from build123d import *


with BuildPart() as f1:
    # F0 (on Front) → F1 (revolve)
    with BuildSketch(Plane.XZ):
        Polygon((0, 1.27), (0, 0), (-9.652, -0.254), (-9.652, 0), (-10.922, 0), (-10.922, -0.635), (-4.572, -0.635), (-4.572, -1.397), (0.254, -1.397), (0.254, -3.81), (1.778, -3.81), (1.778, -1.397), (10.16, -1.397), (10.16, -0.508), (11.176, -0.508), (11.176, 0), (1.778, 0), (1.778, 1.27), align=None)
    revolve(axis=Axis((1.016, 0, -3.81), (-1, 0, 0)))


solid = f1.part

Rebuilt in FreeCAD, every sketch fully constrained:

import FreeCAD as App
import Part
import Sketcher
Q = App.Units.Quantity


def add_polygon(sketch, points):
    """Adds a closed chain of lines whose ends are joined by coincident constraints."""
    first, n = sketch.GeometryCount, len(points)
    for a, b in zip(points, points[1:] + points[:1]):
        sketch.addGeometry(Part.LineSegment(App.Vector(*a, 0), App.Vector(*b, 0)), False)
    for i in range(n):
        sketch.addConstraint(Sketcher.Constraint("Coincident", first + i, 2, first + (i + 1) % n, 1))

doc = App.newDocument("Part")
body = doc.addObject("PartDesign::Body", "Body")

sketch1 = body.newObject("Sketcher::SketchObject", "Sketch")
sketch1.AttachmentSupport = (doc.getObject("XZ_Plane"), [""])
sketch1.MapMode = "FlatFace"
add_polygon(sketch1, [(0, 1.27), (0, 0), (-9.652, -0.254), (-9.652, 0), (-10.922, 0), (-10.922, -0.635), (-4.572, -0.635), (-4.572, -1.397), (0.254, -1.397), (0.254, -3.81), (1.778, -3.81), (1.778, -1.397), (10.16, -1.397), (10.16, -0.508), (11.176, -0.508), (11.176, 0), (1.778, 0), (1.778, 1.27)])
sketch1.addGeometry(Part.LineSegment(App.Vector(11.176, -3.81, 0), App.Vector(-10.922, -3.81, 0)), True)
sketch1.addConstraint(Sketcher.Constraint("Vertical", 0))
sketch1.addConstraint(Sketcher.Constraint("Vertical", 2))
sketch1.addConstraint(Sketcher.Constraint("Horizontal", 3))
sketch1.addConstraint(Sketcher.Constraint("Vertical", 4))
sketch1.addConstraint(Sketcher.Constraint("Horizontal", 5))
sketch1.addConstraint(Sketcher.Constraint("Vertical", 6))
sketch1.addConstraint(Sketcher.Constraint("Horizontal", 7))
sketch1.addConstraint(Sketcher.Constraint("Vertical", 8))
sketch1.addConstraint(Sketcher.Constraint("Horizontal", 9))
sketch1.addConstraint(Sketcher.Constraint("Vertical", 10))
sketch1.addConstraint(Sketcher.Constraint("Horizontal", 11))
sketch1.addConstraint(Sketcher.Constraint("Vertical", 12))
sketch1.addConstraint(Sketcher.Constraint("Horizontal", 13))
sketch1.addConstraint(Sketcher.Constraint("Vertical", 14))
sketch1.addConstraint(Sketcher.Constraint("Horizontal", 15))
sketch1.addConstraint(Sketcher.Constraint("Vertical", 16))
sketch1.addConstraint(Sketcher.Constraint("Horizontal", 17))
sketch1.addConstraint(Sketcher.Constraint("Horizontal", 18))
sketch1.addConstraint(Sketcher.Constraint("Coincident", 0, 2, -1, 1))
sketch1.addConstraint(Sketcher.Constraint("PointOnObject", 2, 2, -1))
sketch1.addConstraint(Sketcher.Constraint("PointOnObject", 14, 2, -1))
sketch1.addConstraint(Sketcher.Constraint("Horizontal", 7, 2, 10, 2))
sketch1.addConstraint(Sketcher.Constraint("Horizontal", 9, 2, 18, 1))
sketch1.addConstraint(Sketcher.Constraint("Vertical", 10, 2, 15, 2))
sketch1.addConstraint(Sketcher.Constraint("Vertical", 14, 2, 18, 1))
sketch1.addConstraint(Sketcher.Constraint("Vertical", 4, 2, 18, 2))
sketch1.addConstraint(Sketcher.Constraint("Equal", 3, 0))
sketch1.addConstraint(Sketcher.Constraint("DistanceX", 3, 2, 3, 1, Q("0.05 in")))
sketch1.addConstraint(Sketcher.Constraint("DistanceX", 5, 1, 5, 2, Q("0.25 in")))
sketch1.addConstraint(Sketcher.Constraint("DistanceX", 7, 1, 7, 2, Q("0.19 in")))
sketch1.addConstraint(Sketcher.Constraint("DistanceX", 9, 1, 9, 2, Q("0.06 in")))
sketch1.addConstraint(Sketcher.Constraint("DistanceX", 11, 1, 11, 2, Q("0.33 in")))
sketch1.addConstraint(Sketcher.Constraint("DistanceX", 13, 1, 13, 2, Q("0.04 in")))
sketch1.addConstraint(Sketcher.Constraint("DistanceX", 17, 2, 17, 1, Q("0.07 in")))
sketch1.addConstraint(Sketcher.Constraint("DistanceY", 2, 1, 2, 2, Q("0.01 in")))
sketch1.addConstraint(Sketcher.Constraint("DistanceY", 6, 2, 6, 1, Q("0.03 in")))
sketch1.addConstraint(Sketcher.Constraint("DistanceY", 14, 1, 14, 2, Q("0.02 in")))
sketch1.addConstraint(Sketcher.Constraint("DistanceY", 9, 2, 16, 2, Q("0.2 in")))
sketch1.addConstraint(Sketcher.Constraint("DistanceY", 4, 2, 4, 1, Q("0.025 in")))
revolution = body.newObject("PartDesign::Revolution", "Revolution")
revolution.Profile = sketch1
revolution.ReferenceAxis = (sketch1, ["Axis0"])
revolution.Angle = 360

doc.recompute()
